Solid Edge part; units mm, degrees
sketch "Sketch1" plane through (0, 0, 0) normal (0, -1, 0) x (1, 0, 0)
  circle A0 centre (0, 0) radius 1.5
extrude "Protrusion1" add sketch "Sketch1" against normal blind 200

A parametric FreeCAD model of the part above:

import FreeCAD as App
import Part
import Sketcher

doc = App.newDocument("Part")
body = doc.addObject("PartDesign::Body", "Body")

# Sketch on XZ plane
sketch1 = body.newObject("Sketcher::SketchObject", "Sketch")
sketch1.AttachmentSupport = (doc.getObject("XZ_Plane"), [""])
sketch1.MapMode = "FlatFace"
sketch1.addGeometry(Part.Circle(App.Vector(0, 0, 0), App.Vector(0, 0, 1), 1.5), False)
sketch1.addConstraint(Sketcher.Constraint("Coincident", 0, 3, -1, 1))
sketch1.addConstraint(Sketcher.Constraint("Diameter", 0, 3.0))
pad1 = body.newObject("PartDesign::Pad", "Pad")
pad1.Profile = sketch1
pad1.Length = 200
pad1.Reversed = True

doc.recompute()
